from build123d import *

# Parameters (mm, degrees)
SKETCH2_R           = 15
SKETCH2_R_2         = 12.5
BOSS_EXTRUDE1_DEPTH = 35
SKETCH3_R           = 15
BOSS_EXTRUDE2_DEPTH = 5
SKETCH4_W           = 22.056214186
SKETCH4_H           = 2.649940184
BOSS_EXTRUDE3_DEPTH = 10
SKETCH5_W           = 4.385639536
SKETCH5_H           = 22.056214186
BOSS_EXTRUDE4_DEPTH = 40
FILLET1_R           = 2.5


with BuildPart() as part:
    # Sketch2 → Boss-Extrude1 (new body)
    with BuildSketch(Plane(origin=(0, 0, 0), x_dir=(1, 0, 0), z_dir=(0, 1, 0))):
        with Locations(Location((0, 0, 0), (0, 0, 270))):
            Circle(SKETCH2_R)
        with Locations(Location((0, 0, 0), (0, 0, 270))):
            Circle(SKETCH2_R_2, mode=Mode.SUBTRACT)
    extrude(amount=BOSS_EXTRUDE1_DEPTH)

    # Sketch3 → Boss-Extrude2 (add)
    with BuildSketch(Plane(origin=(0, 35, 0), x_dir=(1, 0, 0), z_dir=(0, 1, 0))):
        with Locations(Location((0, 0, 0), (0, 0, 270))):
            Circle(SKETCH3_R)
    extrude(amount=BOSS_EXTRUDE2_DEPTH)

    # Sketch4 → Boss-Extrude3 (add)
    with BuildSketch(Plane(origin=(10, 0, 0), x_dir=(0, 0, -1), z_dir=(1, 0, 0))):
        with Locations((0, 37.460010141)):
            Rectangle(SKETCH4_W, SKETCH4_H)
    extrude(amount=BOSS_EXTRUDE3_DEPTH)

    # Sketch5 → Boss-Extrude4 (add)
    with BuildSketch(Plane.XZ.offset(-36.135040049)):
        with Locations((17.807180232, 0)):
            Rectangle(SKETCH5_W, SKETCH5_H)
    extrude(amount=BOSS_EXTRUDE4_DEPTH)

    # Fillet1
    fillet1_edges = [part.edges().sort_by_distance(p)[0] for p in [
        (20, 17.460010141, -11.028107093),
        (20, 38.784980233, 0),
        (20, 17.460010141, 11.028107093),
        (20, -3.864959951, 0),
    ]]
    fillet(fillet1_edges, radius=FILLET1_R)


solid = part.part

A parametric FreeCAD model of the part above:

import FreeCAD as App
import Part
import Sketcher


def edges_at(feature, points):
    """Names of the edges that pass closest to the given points."""
    edges = feature.Shape.Edges
    near = lambda p: min(range(len(edges)), key=lambda i: edges[i].distToShape(Part.Vertex(*p))[0])
    return sorted({f"Edge{near(p) + 1}" for p in points})


def add_polygon(sketch, points):
    """Adds a closed chain of lines whose ends are joined by coincident constraints."""
    first, n = sketch.GeometryCount, len(points)
    for a, b in zip(points, points[1:] + points[:1]):
        sketch.addGeometry(Part.LineSegment(App.Vector(*a, 0), App.Vector(*b, 0)), False)
    for i in range(n):
        sketch.addConstraint(Sketcher.Constraint("Coincident", first + i, 2, first + (i + 1) % n, 1))

doc = App.newDocument("Part")
body = doc.addObject("PartDesign::Body", "Body")

sketch1 = body.newObject("Sketcher::SketchObject", "Sketch")
sketch1.AttachmentSupport = (doc.getObject("XZ_Plane"), [""])
sketch1.MapMode = "FlatFace"
sketch1.addGeometry(Part.Circle(App.Vector(0, 0, 0), App.Vector(0, 0, 1), 15), False)
sketch1.addGeometry(Part.Circle(App.Vector(0, 0, 0), App.Vector(0, 0, 1), 12), False)
sketch1.addConstraint(Sketcher.Constraint("Coincident", 0, 3, -1, 1))
sketch1.addConstraint(Sketcher.Constraint("Coincident", 1, 3, -1, 1))
sketch1.addConstraint(Sketcher.Constraint("Diameter", 0, 30.0))
sketch1.addConstraint(Sketcher.Constraint("Diameter", 1, 25.0))
pad1 = body.newObject("PartDesign::Pad", "Pad")
pad1.Profile = sketch1
pad1.Length = 35
pad1.Reversed = True

sketch2 = body.newObject("Sketcher::SketchObject", "Sketch001")
sketch2.AttachmentSupport = (doc.getObject("XZ_Plane"), [""])
sketch2.MapMode = "FlatFace"
sketch2.AttachmentOffset = App.Placement(App.Vector(0, 0, -35), App.Rotation())
sketch2.addGeometry(Part.Circle(App.Vector(0, 0, 0), App.Vector(0, 0, 1), 15), False)
sketch2.addConstraint(Sketcher.Constraint("Coincident", 0, 3, -1, 1))
sketch2.addConstraint(Sketcher.Constraint("Diameter", 0, 30.0))
pad2 = body.newObject("PartDesign::Pad", "Pad001")
pad2.Profile = sketch2
pad2.Length = 5
pad2.Reversed = True

sketch3 = body.newObject("Sketcher::SketchObject", "Sketch002")
sketch3.AttachmentSupport = (doc.getObject("YZ_Plane"), [""])
sketch3.MapMode = "FlatFace"
sketch3.AttachmentOffset = App.Placement(App.Vector(0, 0, 10), App.Rotation())
add_polygon(sketch3, [(38.8, 11), (36.1, 11), (36.1, -11), (38.8, -11)])
sketch3.addConstraint(Sketcher.Constraint("Horizontal", 0))
sketch3.addConstraint(Sketcher.Constraint("Vertical", 1))
sketch3.addConstraint(Sketcher.Constraint("Horizontal", 2))
sketch3.addConstraint(Sketcher.Constraint("Vertical", 3))
sketch3.addConstraint(Sketcher.Constraint("DistanceX", 0, 2, 0, 1, 2.64994))
sketch3.addConstraint(Sketcher.Constraint("DistanceY", 1, 2, 1, 1, 22.056214))
sketch3.addConstraint(Sketcher.Constraint("DistanceX", -1, 1, 0, 2, 36.13504))
sketch3.addConstraint(Sketcher.Constraint("DistanceY", -1, 1, 0, 2, 11.028107))
pad3 = body.newObject("PartDesign::Pad", "Pad002")
pad3.Profile = sketch3
pad3.Length = 10

sketch4 = body.newObject("Sketcher::SketchObject", "Sketch003")
sketch4.AttachmentSupport = (doc.getObject("XZ_Plane"), [""])
sketch4.MapMode = "FlatFace"
sketch4.AttachmentOffset = App.Placement(App.Vector(0, 0, -36.13504), App.Rotation())
add_polygon(sketch4, [(15.6, 11), (15.6, -11), (20, -11), (20, 11)])
sketch4.addConstraint(Sketcher.Constraint("Vertical", 0))
sketch4.addConstraint(Sketcher.Constraint("Horizontal", 1))
sketch4.addConstraint(Sketcher.Constraint("Vertical", 2))
sketch4.addConstraint(Sketcher.Constraint("Horizontal", 3))
sketch4.addConstraint(Sketcher.Constraint("DistanceX", -1, 1, 1, 2, 20.0))
sketch4.addConstraint(Sketcher.Constraint("DistanceX", 1, 1, 1, 2, 4.38564))
sketch4.addConstraint(Sketcher.Constraint("DistanceY", 0, 2, 0, 1, 22.056214))
sketch4.addConstraint(Sketcher.Constraint("DistanceY", 0, 2, -1, 1, 11.028107))
pad4 = body.newObject("PartDesign::Pad", "Pad003")
pad4.Profile = sketch4
pad4.Length = 40
doc.recompute()

fillet = body.newObject("PartDesign::Fillet", "Fillet")
fillet.Base = (pad4, edges_at(pad4, [
    (20, 17.46, -11.028),
    (20, 38.785, 0),
    (20, 17.46, 11.028),
    (20, -3.865, 0),
]))
fillet.Radius = 2.5

doc.recompute()
